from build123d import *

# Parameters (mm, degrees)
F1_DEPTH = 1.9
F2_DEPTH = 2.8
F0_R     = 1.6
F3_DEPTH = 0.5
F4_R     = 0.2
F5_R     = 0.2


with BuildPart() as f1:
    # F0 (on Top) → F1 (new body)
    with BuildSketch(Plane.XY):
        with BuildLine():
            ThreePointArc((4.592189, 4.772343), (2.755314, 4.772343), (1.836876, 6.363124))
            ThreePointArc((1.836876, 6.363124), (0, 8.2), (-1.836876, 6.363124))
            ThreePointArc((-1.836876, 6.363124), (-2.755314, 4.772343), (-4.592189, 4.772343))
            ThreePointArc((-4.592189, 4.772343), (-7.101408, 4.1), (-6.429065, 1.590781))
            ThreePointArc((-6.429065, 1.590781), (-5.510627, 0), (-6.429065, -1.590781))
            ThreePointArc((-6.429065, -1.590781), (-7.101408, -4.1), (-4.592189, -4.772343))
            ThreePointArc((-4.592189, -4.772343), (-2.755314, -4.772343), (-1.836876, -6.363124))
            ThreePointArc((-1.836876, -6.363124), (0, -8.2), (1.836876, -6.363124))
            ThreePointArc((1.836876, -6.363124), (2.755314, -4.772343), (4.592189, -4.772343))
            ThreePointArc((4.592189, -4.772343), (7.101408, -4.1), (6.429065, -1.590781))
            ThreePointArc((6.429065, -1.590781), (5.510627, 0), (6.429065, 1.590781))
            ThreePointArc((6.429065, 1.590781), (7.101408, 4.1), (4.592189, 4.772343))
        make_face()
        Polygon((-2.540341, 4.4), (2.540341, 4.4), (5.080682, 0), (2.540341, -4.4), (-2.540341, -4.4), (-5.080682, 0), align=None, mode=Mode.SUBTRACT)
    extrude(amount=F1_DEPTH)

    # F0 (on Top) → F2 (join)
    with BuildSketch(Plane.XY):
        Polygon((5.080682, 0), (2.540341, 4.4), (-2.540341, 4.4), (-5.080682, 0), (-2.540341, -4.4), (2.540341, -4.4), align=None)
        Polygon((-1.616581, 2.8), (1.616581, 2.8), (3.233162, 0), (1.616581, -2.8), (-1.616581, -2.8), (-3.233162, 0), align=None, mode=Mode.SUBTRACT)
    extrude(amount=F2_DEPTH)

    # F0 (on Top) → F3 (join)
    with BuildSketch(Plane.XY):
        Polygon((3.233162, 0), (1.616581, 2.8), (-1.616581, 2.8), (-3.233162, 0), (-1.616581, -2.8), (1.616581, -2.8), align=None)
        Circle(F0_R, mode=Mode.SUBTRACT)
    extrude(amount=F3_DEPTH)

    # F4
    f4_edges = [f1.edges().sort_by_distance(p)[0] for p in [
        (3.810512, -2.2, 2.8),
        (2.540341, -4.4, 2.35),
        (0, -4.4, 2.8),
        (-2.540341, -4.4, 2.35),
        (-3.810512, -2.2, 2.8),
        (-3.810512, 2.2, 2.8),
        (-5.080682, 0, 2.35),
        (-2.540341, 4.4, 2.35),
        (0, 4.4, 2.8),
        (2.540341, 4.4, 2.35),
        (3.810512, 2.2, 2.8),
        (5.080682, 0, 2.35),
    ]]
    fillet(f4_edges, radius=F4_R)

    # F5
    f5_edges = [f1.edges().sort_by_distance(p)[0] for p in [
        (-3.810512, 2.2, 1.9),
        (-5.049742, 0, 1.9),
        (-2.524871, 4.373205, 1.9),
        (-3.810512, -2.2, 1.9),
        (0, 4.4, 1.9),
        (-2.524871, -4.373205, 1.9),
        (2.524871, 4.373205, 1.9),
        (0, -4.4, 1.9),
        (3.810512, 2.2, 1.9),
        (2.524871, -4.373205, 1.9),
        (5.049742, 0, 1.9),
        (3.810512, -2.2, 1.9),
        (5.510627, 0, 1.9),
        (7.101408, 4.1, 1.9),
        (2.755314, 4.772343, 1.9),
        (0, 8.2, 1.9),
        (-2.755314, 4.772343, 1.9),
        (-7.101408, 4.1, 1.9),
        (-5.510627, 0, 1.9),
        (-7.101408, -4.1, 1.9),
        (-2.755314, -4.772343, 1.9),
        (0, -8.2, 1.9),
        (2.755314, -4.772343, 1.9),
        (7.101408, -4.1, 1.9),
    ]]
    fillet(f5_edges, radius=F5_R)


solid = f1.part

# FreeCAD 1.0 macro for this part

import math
import FreeCAD as App
import Part
import Sketcher
from FreeCAD import Vector
Q = App.Units.Quantity


def edges_at(feature, points):
    """Names of the edges that pass closest to the given points."""
    edges = feature.Shape.Edges
    near = lambda p: min(range(len(edges)), key=lambda i: edges[i].distToShape(Part.Vertex(*p))[0])
    return sorted({f"Edge{near(p) + 1}" for p in points})


def add_polygon(sketch, points):
    """Adds a closed chain of lines whose ends are joined by coincident constraints."""
    first, n = sketch.GeometryCount, len(points)
    for a, b in zip(points, points[1:] + points[:1]):
        sketch.addGeometry(Part.LineSegment(App.Vector(*a, 0), App.Vector(*b, 0)), False)
    for i in range(n):
        sketch.addConstraint(Sketcher.Constraint("Coincident", first + i, 2, first + (i + 1) % n, 1))

doc = App.newDocument("Part")
body = doc.addObject("PartDesign::Body", "Body")

sketch1 = body.newObject("Sketcher::SketchObject", "Sketch")
sketch1.AttachmentSupport = (doc.getObject("XY_Plane"), [""])
sketch1.MapMode = "FlatFace"
sketch1.addGeometry(Part.ArcOfCircle(Part.Circle(Vector(3.7, 6.4, 0), Vector(0, 0, 1), 1.8), math.radians(180), math.radians(300)), False)
sketch1.addGeometry(Part.ArcOfCircle(Part.Circle(Vector(0, 6.4, 0), Vector(0, 0, 1), 1.8), math.radians(0), math.radians(180)), False)
sketch1.addGeometry(Part.ArcOfCircle(Part.Circle(Vector(-3.7, 6.4, 0), Vector(0, 0, 1), 1.8), math.radians(-120), math.radians(0)), False)
sketch1.addGeometry(Part.ArcOfCircle(Part.Circle(Vector(-5.5, 3.2, 0), Vector(0, 0, 1), 1.8), math.radians(60), math.radians(240)), False)
sketch1.addGeometry(Part.ArcOfCircle(Part.Circle(Vector(-7.3, 0, 0), Vector(0, 0, 1), 1.8), math.radians(-60), math.radians(60)), False)
sketch1.addGeometry(Part.ArcOfCircle(Part.Circle(Vector(-5.5, -3.2, 0), Vector(0, 0, 1), 1.8), math.radians(120), math.radians(300)), False)
sketch1.addGeometry(Part.ArcOfCircle(Part.Circle(Vector(-3.7, -6.4, 0), Vector(0, 0, 1), 1.8), math.radians(0), math.radians(120)), False)
sketch1.addGeometry(Part.ArcOfCircle(Part.Circle(Vector(0, -6.4, 0), Vector(0, 0, 1), 1.8), math.radians(180), math.radians(360)), False)
sketch1.addGeometry(Part.ArcOfCircle(Part.Circle(Vector(3.7, -6.4, 0), Vector(0, 0, 1), 1.8), math.radians(60), math.radians(180)), False)
sketch1.addGeometry(Part.ArcOfCircle(Part.Circle(Vector(5.5, -3.2, 0), Vector(0, 0, 1), 1.8), math.radians(-120), math.radians(60)), False)
sketch1.addGeometry(Part.ArcOfCircle(Part.Circle(Vector(7.3, 0, 0), Vector(0, 0, 1), 1.8), math.radians(120), math.radians(240)), False)
sketch1.addGeometry(Part.ArcOfCircle(Part.Circle(Vector(5.5, 3.2, 0), Vector(0, 0, 1), 1.8), math.radians(-60), math.radians(120)), False)
add_polygon(sketch1, [(-5.1, 0), (-2.5, 4.4), (2.5, 4.4), (5.1, 0), (2.5, -4.4), (-2.5, -4.4)])
sketch1.addConstraint(Sketcher.Constraint("Tangent", 0, 1, 1, 1))
sketch1.addConstraint(Sketcher.Constraint("Tangent", 1, 2, 2, 2))
sketch1.addConstraint(Sketcher.Constraint("Tangent", 2, 1, 3, 1))
sketch1.addConstraint(Sketcher.Constraint("Tangent", 3, 2, 4, 2))
sketch1.addConstraint(Sketcher.Constraint("Tangent", 4, 1, 5, 1))
sketch1.addConstraint(Sketcher.Constraint("Tangent", 5, 2, 6, 2))
sketch1.addConstraint(Sketcher.Constraint("Tangent", 6, 1, 7, 1))
sketch1.addConstraint(Sketcher.Constraint("Tangent", 7, 2, 8, 2))
sketch1.addConstraint(Sketcher.Constraint("Tangent", 8, 1, 9, 1))
sketch1.addConstraint(Sketcher.Constraint("Tangent", 9, 2, 10, 2))
sketch1.addConstraint(Sketcher.Constraint("Tangent", 10, 1, 11, 1))
sketch1.addConstraint(Sketcher.Constraint("Tangent", 11, 2, 0, 2))
sketch1.addConstraint(Sketcher.Constraint("Horizontal", 13))
sketch1.addConstraint(Sketcher.Constraint("Horizontal", 16))
sketch1.addConstraint(Sketcher.Constraint("Equal", 0, 1))
sketch1.addConstraint(Sketcher.Constraint("Equal", 1, 2))
sketch1.addConstraint(Sketcher.Constraint("Equal", 2, 3))
sketch1.addConstraint(Sketcher.Constraint("Equal", 3, 4))
sketch1.addConstraint(Sketcher.Constraint("Equal", 4, 5))
sketch1.addConstraint(Sketcher.Constraint("Equal", 5, 6))
sketch1.addConstraint(Sketcher.Constraint("Equal", 6, 7))
sketch1.addConstraint(Sketcher.Constraint("Equal", 7, 8))
sketch1.addConstraint(Sketcher.Constraint("Equal", 8, 9))
sketch1.addConstraint(Sketcher.Constraint("Equal", 9, 10))
sketch1.addConstraint(Sketcher.Constraint("Equal", 10, 11))
sketch1.addConstraint(Sketcher.Constraint("Symmetric", 0, 3, 6, 3, -1, 1))
sketch1.addConstraint(Sketcher.Constraint("Symmetric", 3, 3, 9, 3, -1, 1))
sketch1.addConstraint(Sketcher.Constraint("Symmetric", 12, 2, 15, 2, -1, 1))
sketch1.addConstraint(Sketcher.Constraint("Symmetric", 14, 2, 17, 2, -1, 1))
sketch1.addConstraint(Sketcher.Constraint("Symmetric", 0, 3, 2, 3, -2))
sketch1.addConstraint(Sketcher.Constraint("PointOnObject", 14, 2, -1))
sketch1.addConstraint(Sketcher.Constraint("Parallel", 14, 17))
sketch1.addConstraint(Sketcher.Constraint("Horizontal", 0, 3, 1, 3))
sketch1.addConstraint(Sketcher.Constraint("Horizontal", 6, 3, 7, 3))
sketch1.addConstraint(Sketcher.Constraint("Horizontal", 5, 3, 9, 3))
sketch1.addConstraint(Sketcher.Constraint("Horizontal", 3, 3, 11, 3))
sketch1.addConstraint(Sketcher.Constraint("Vertical", 13, 2, 15, 2))
sketch1.addConstraint(Sketcher.Constraint("Angle", 12, Q("60.000002 deg")))
sketch1.addConstraint(Sketcher.Constraint("DistanceY", -1, 1, 12, 2, Q("4.4 mm")))
sketch1.addConstraint(Sketcher.Constraint("Radius", 0, Q("1.836876 mm")))
sketch1.addConstraint(Sketcher.Constraint("DistanceX", 13, 1, 13, 2, Q("5.080682 mm")))
sketch1.addConstraint(Sketcher.Constraint("DistanceY", -1, 1, 3, 3, Q("3.181562 mm")))
sketch1.addConstraint(Sketcher.Constraint("DistanceX", 2, 1, -1, 1, Q("4.592189 mm")))
pad1 = body.newObject("PartDesign::Pad", "Pad")
pad1.Profile = sketch1
pad1.Length = 1.9

sketch2 = body.newObject("Sketcher::SketchObject", "Sketch001")
sketch2.AttachmentSupport = (doc.getObject("XY_Plane"), [""])
sketch2.MapMode = "FlatFace"
add_polygon(sketch2, [(5.1, 0), (2.5, 4.4), (-2.5, 4.4), (-5.1, 0), (-2.5, -4.4), (2.5, -4.4)])
add_polygon(sketch2, [(-3.2, 0), (-1.6, 2.8), (1.6, 2.8), (3.2, 0), (1.6, -2.8), (-1.6, -2.8)])
sketch2.addConstraint(Sketcher.Constraint("Horizontal", 1))
sketch2.addConstraint(Sketcher.Constraint("Horizontal", 4))
sketch2.addConstraint(Sketcher.Constraint("Horizontal", 7))
sketch2.addConstraint(Sketcher.Constraint("Horizontal", 10))
sketch2.addConstraint(Sketcher.Constraint("Symmetric", 0, 2, 3, 2, -1, 1))
sketch2.addConstraint(Sketcher.Constraint("Symmetric", 2, 2, 5, 2, -1, 1))
sketch2.addConstraint(Sketcher.Constraint("Symmetric", 6, 2, 9, 2, -1, 1))
sketch2.addConstraint(Sketcher.Constraint("Symmetric", 8, 2, 11, 2, -1, 1))
sketch2.addConstraint(Sketcher.Constraint("PointOnObject", 2, 2, -1))
sketch2.addConstraint(Sketcher.Constraint("PointOnObject", 8, 2, -1))
sketch2.addConstraint(Sketcher.Constraint("Parallel", 2, 5))
sketch2.addConstraint(Sketcher.Constraint("Parallel", 5, 6))
sketch2.addConstraint(Sketcher.Constraint("Parallel", 3, 8))
sketch2.addConstraint(Sketcher.Constraint("Parallel", 8, 11))
sketch2.addConstraint(Sketcher.Constraint("Vertical", 1, 2, 3, 2))
sketch2.addConstraint(Sketcher.Constraint("Angle", 0, Q("119.999998 deg")))
sketch2.addConstraint(Sketcher.Constraint("DistanceY", -1, 1, 0, 2, Q("4.4 mm")))
sketch2.addConstraint(Sketcher.Constraint("DistanceY", -1, 1, 6, 2, Q("2.8 mm")))
sketch2.addConstraint(Sketcher.Constraint("DistanceX", 2, 2, 6, 2, Q("3.464101 mm")))
sketch2.addConstraint(Sketcher.Constraint("DistanceX", 1, 2, 1, 1, Q("5.080682 mm")))
pad2 = body.newObject("PartDesign::Pad", "Pad001")
pad2.Profile = sketch2
pad2.Length = 2.8

sketch3 = body.newObject("Sketcher::SketchObject", "Sketch002")
sketch3.AttachmentSupport = (doc.getObject("XY_Plane"), [""])
sketch3.MapMode = "FlatFace"
add_polygon(sketch3, [(3.2, 0), (1.6, 2.8), (-1.6, 2.8), (-3.2, 0), (-1.6, -2.8), (1.6, -2.8)])
sketch3.addGeometry(Part.Circle(Vector(0, 0, 0), Vector(0, 0, 1), 1.6), False)
sketch3.addConstraint(Sketcher.Constraint("Horizontal", 1))
sketch3.addConstraint(Sketcher.Constraint("Horizontal", 4))
sketch3.addConstraint(Sketcher.Constraint("Coincident", 6, 3, -1, 1))
sketch3.addConstraint(Sketcher.Constraint("Symmetric", 0, 2, 3, 2, -1, 1))
sketch3.addConstraint(Sketcher.Constraint("Symmetric", 2, 2, 5, 2, -1, 1))
sketch3.addConstraint(Sketcher.Constraint("PointOnObject", 2, 2, -1))
sketch3.addConstraint(Sketcher.Constraint("Parallel", 2, 5))
sketch3.addConstraint(Sketcher.Constraint("Vertical", 1, 2, 3, 2))
sketch3.addConstraint(Sketcher.Constraint("Diameter", 6, Q("3.2 mm")))
sketch3.addConstraint(Sketcher.Constraint("Angle", 0, Q("120.000004 deg")))
sketch3.addConstraint(Sketcher.Constraint("DistanceY", -1, 1, 0, 2, Q("2.8 mm")))
sketch3.addConstraint(Sketcher.Constraint("DistanceX", 1, 2, 1, 1, Q("3.233162 mm")))
pad3 = body.newObject("PartDesign::Pad", "Pad002")
pad3.Profile = sketch3
pad3.Length = 0.5
doc.recompute()

fillet = body.newObject("PartDesign::Fillet", "Fillet")
fillet.Base = (pad3, edges_at(pad3, [
    (3.811, -2.2, 2.8),
    (2.54, -4.4, 2.35),
    (0, -4.4, 2.8),
    (-2.54, -4.4, 2.35),
    (-3.811, -2.2, 2.8),
    (-3.811, 2.2, 2.8),
    (-5.081, 0, 2.35),
    (-2.54, 4.4, 2.35),
    (0, 4.4, 2.8),
    (2.54, 4.4, 2.35),
    (3.811, 2.2, 2.8),
    (5.081, 0, 2.35),
]))
fillet.Radius = 0.2
doc.recompute()

fillet2 = body.newObject("PartDesign::Fillet", "Fillet001")
fillet2.Base = (fillet, edges_at(fillet, [
    (-3.811, 2.2, 1.9),
    (-5.05, 0, 1.9),
    (-2.525, 4.373, 1.9),
    (-3.811, -2.2, 1.9),
    (0, 4.4, 1.9),
    (-2.525, -4.373, 1.9),
    (2.525, 4.373, 1.9),
    (0, -4.4, 1.9),
    (3.811, 2.2, 1.9),
    (2.525, -4.373, 1.9),
    (5.05, 0, 1.9),
    (3.811, -2.2, 1.9),
    (5.511, 0, 1.9),
    (7.101, 4.1, 1.9),
    (2.755, 4.772, 1.9),
    (0, 8.2, 1.9),
    (-2.755, 4.772, 1.9),
    (-7.101, 4.1, 1.9),
    (-5.511, 0, 1.9),
    (-7.101, -4.1, 1.9),
    (-2.755, -4.772, 1.9),
    (0, -8.2, 1.9),
    (2.755, -4.772, 1.9),
    (7.101, -4.1, 1.9),
]))
fillet2.Radius = 0.2

doc.recompute()
